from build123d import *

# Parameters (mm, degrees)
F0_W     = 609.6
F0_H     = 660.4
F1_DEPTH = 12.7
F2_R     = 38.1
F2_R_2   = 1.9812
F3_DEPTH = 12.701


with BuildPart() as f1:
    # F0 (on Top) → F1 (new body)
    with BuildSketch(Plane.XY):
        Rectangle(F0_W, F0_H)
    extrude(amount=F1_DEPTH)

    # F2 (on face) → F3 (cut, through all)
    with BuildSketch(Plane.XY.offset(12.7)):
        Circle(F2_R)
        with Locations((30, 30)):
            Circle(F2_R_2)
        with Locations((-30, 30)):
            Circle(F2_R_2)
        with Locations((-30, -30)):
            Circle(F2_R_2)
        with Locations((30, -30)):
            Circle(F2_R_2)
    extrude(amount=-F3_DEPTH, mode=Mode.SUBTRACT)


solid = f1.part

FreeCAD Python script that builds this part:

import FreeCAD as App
import Part
import Sketcher
Q = App.Units.Quantity

doc = App.newDocument("Part")
body = doc.addObject("PartDesign::Body", "Body")

# Sketch on XY plane
sketch1 = doc.addObject("Sketcher::SketchObject", "Sketch")
body.addObject(sketch1)
sketch1.AttachmentSupport = (doc.XY_Plane, [""])
sketch1.MapMode = "FlatFace"
sketch1.addGeometry(Part.LineSegment(App.Vector(-304.8, 330.2, 0), App.Vector(-304.8, -330.2, 0)), False)
sketch1.addGeometry(Part.LineSegment(App.Vector(-304.8, -330.2, 0), App.Vector(304.8, -330.2, 0)), False)
sketch1.addGeometry(Part.LineSegment(App.Vector(304.8, -330.2, 0), App.Vector(304.8, 330.2, 0)), False)
sketch1.addGeometry(Part.LineSegment(App.Vector(304.8, 330.2, 0), App.Vector(-304.8, 330.2, 0)), False)
sketch1.addConstraint(Sketcher.Constraint("Coincident", 0, 2, 1, 1))
sketch1.addConstraint(Sketcher.Constraint("Coincident", 1, 2, 2, 1))
sketch1.addConstraint(Sketcher.Constraint("Coincident", 2, 2, 3, 1))
sketch1.addConstraint(Sketcher.Constraint("Coincident", 3, 2, 0, 1))
sketch1.addConstraint(Sketcher.Constraint("Vertical", 0))
sketch1.addConstraint(Sketcher.Constraint("Horizontal", 1))
sketch1.addConstraint(Sketcher.Constraint("Vertical", 2))
sketch1.addConstraint(Sketcher.Constraint("Horizontal", 3))
sketch1.addConstraint(Sketcher.Constraint("Symmetric", 0, 2, 2, 2, -1, 1))
sketch1.addConstraint(Sketcher.Constraint("DistanceX", 1, 1, 1, 2, Q("24 in")))
sketch1.addConstraint(Sketcher.Constraint("DistanceY", 0, 2, 0, 1, Q("26 in")))
pad1 = doc.addObject("PartDesign::Pad", "Pad")
body.addObject(pad1)
pad1.Profile = sketch1
pad1.Length = Q("0.5 in")

# Sketch on XY plane
sketch2 = doc.addObject("Sketcher::SketchObject", "Sketch001")
body.addObject(sketch2)
sketch2.AttachmentSupport = (doc.XY_Plane, [""])
sketch2.MapMode = "FlatFace"
sketch2.AttachmentOffset = App.Placement(App.Vector(0, 0, 0.5 * 25.4), App.Rotation())
sketch2.addGeometry(Part.Circle(App.Vector(0, 0, 0), App.Vector(0, 0, 1), 38.1), False)
sketch2.addGeometry(Part.Circle(App.Vector(30, 30, 0), App.Vector(0, 0, 1), 1.9812), False)
sketch2.addGeometry(Part.Circle(App.Vector(-30, 30, 0), App.Vector(0, 0, 1), 1.9812), False)
sketch2.addGeometry(Part.Circle(App.Vector(-30, -30, 0), App.Vector(0, 0, 1), 1.9812), False)
sketch2.addGeometry(Part.Circle(App.Vector(30, -30, 0), App.Vector(0, 0, 1), 1.9812), False)
sketch2.addConstraint(Sketcher.Constraint("Coincident", 0, 3, -1, 1))
sketch2.addConstraint(Sketcher.Constraint("Equal", 1, 2))
sketch2.addConstraint(Sketcher.Constraint("Equal", 2, 3))
sketch2.addConstraint(Sketcher.Constraint("Equal", 3, 4))
sketch2.addConstraint(Sketcher.Constraint("Symmetric", 1, 3, 3, 3, -1, 1))
sketch2.addConstraint(Sketcher.Constraint("Symmetric", 2, 3, 4, 3, -1, 1))
sketch2.addConstraint(Sketcher.Constraint("Symmetric", 1, 3, 2, 3, -2))
sketch2.addConstraint(Sketcher.Constraint("Diameter", 0, Q("3 in")))
sketch2.addConstraint(Sketcher.Constraint("Diameter", 1, Q("0.156 in")))
sketch2.addConstraint(Sketcher.Constraint("DistanceX", -1, 1, 1, 3, 30.0))
sketch2.addConstraint(Sketcher.Constraint("DistanceY", -1, 1, 1, 3, 30.0))
pocket1 = doc.addObject("PartDesign::Pocket", "Pocket")
body.addObject(pocket1)
pocket1.Profile = sketch2
pocket1.Type = "ThroughAll"

doc.recompute()
